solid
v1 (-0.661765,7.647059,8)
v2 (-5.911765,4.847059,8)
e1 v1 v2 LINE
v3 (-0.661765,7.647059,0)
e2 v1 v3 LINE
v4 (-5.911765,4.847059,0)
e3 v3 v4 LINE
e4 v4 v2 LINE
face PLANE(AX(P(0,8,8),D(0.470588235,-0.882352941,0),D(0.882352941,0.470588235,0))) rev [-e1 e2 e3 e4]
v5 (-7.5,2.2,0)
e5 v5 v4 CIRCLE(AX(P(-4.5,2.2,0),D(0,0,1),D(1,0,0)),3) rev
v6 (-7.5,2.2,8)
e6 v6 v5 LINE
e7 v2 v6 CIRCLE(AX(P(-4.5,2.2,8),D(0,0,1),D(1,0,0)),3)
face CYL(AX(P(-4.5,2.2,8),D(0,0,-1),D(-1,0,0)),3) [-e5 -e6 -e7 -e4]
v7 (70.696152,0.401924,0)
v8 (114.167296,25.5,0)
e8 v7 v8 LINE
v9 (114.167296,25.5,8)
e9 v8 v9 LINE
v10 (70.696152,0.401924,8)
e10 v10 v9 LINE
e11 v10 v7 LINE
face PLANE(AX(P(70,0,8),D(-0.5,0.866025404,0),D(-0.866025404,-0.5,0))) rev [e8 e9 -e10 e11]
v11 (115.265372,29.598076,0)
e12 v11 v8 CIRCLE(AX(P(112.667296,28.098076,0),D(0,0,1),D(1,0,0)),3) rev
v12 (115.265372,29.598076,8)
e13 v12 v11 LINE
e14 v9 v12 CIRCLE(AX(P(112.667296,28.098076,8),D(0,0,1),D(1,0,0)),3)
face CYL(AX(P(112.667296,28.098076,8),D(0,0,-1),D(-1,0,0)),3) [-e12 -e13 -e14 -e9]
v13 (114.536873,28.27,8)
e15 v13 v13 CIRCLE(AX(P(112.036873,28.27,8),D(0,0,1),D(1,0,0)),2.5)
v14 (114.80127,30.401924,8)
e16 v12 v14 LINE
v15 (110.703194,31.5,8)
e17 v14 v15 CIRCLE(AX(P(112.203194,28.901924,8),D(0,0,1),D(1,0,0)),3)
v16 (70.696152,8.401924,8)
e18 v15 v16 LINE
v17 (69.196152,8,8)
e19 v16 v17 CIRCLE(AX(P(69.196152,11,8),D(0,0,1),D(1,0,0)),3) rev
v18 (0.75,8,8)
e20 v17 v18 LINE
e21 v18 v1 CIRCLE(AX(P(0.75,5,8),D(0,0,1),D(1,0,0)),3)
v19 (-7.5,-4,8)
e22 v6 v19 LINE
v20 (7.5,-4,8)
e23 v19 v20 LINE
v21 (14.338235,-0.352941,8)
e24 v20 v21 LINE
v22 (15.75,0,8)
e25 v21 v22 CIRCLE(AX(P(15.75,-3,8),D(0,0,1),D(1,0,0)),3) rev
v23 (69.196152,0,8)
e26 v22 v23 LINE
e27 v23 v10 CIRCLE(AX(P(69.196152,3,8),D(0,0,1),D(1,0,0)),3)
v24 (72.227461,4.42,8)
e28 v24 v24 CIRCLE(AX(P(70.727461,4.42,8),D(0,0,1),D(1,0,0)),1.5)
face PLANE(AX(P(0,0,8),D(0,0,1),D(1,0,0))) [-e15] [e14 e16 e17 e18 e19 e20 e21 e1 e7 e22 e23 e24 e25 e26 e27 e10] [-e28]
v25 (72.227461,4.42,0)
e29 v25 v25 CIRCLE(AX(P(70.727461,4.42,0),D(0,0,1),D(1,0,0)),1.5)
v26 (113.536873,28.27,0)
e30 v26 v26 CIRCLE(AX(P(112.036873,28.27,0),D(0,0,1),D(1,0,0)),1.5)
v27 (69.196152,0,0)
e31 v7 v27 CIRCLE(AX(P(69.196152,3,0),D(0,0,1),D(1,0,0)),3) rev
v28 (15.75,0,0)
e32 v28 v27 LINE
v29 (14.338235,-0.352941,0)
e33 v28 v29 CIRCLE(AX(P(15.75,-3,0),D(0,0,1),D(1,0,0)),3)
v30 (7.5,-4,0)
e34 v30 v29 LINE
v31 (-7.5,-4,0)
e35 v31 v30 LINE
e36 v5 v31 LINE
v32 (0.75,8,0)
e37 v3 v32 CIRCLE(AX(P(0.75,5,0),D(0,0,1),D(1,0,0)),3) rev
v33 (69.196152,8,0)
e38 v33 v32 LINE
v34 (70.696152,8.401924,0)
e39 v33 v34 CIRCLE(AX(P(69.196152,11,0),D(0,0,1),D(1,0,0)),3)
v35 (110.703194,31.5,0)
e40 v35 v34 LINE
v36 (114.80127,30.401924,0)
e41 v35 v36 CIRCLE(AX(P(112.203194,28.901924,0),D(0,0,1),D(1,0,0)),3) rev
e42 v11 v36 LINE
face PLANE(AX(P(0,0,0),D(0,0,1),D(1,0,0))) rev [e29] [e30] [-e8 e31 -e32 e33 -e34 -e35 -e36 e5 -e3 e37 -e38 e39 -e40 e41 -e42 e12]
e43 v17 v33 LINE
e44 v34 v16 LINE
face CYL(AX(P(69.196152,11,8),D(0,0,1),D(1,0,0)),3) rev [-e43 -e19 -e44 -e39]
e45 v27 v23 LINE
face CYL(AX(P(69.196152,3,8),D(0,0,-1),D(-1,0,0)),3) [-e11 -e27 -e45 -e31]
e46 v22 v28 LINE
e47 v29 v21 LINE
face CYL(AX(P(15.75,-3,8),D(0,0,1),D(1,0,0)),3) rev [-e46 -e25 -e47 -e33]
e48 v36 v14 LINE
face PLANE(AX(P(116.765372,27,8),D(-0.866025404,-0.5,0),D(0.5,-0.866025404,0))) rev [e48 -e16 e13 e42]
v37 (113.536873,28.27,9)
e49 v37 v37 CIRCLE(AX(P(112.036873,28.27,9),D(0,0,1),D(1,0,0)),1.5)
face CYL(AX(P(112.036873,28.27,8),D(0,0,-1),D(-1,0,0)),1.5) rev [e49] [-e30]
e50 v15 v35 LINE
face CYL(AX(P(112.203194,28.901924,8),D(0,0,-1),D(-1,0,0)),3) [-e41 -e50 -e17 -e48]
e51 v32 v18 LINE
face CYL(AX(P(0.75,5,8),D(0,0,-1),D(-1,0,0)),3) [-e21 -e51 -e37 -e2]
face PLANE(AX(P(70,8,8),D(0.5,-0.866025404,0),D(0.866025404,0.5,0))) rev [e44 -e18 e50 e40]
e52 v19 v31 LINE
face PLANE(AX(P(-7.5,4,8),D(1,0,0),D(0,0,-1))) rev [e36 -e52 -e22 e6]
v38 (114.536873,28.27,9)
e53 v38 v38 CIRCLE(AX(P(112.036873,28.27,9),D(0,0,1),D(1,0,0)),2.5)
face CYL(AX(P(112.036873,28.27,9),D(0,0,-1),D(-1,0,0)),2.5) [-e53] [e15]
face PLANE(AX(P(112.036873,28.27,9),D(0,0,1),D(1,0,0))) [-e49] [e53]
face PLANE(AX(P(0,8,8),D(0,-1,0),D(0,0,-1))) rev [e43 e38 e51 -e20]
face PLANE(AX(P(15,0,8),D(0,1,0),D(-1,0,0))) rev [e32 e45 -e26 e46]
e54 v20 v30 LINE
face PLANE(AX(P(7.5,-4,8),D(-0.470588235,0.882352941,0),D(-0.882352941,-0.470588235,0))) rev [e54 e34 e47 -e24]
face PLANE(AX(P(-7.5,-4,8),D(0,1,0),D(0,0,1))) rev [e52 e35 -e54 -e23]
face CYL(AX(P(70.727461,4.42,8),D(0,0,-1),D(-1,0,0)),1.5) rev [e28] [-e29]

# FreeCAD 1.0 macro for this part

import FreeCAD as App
import Part
import Sketcher

V = App.Vector
Q = App.Units.Quantity


def edges_at(feature, points):
    """Names of the edges that pass closest to the given points."""
    edges = feature.Shape.Edges
    near = lambda p: min(range(len(edges)), key=lambda i: edges[i].distToShape(Part.Vertex(*p))[0])
    return sorted({f"Edge{near(p) + 1}" for p in points})

doc = App.newDocument("Part")
params = doc.addObject("Spreadsheet::Sheet", "Params")
for row, (alias, value) in enumerate([
    ("sketch1_diameter", "3 mm"),
    ("sketch1_width", "15 mm"),
    ("sketch1_width2", "55 mm"),
    ("sketch1_height", "8 mm"),
    ("sketch1_length", "54 mm"),
    ("pad1_length", "8 mm"),
    ("fillet_radius", "3 mm"),
    ("sketch2_diameter", "5 mm"),
    ("sketch2_diameter2", "3 mm"),
    ("pad2_length", "1 mm"),
], start=1):
    params.set(f"A{row}", alias)
    params.set(f"B{row}", "=" + value)
    params.setAlias(f"B{row}", alias)

body = doc.addObject("PartDesign::Body", "Body")

# Sketch on XY plane
sketch1 = doc.addObject("Sketcher::SketchObject", "Sketch")
body.addObject(sketch1)
sketch1.AttachmentSupport = (doc.XY_Plane, [""])
sketch1.MapMode = "FlatFace"
sketch1.addGeometry(Part.LineSegment(V(-7.5, 4, 0), V(-7.5, -4, 0)), False)
sketch1.addGeometry(Part.LineSegment(V(-7.5, -4, 0), V(7.5, -4, 0)), False)
sketch1.addGeometry(Part.LineSegment(V(7.5, -4, 0), V(15, 0, 0)), False)
sketch1.addGeometry(Part.LineSegment(V(15, 0, 0), V(70, 0, 0)), False)
sketch1.addGeometry(Part.LineSegment(V(70, 0, 0), V(116.8, 27, 0)), False)
sketch1.addGeometry(Part.LineSegment(V(116.8, 27, 0), V(113.3, 33, 0)), False)
sketch1.addGeometry(Part.LineSegment(V(113.3, 33, 0), V(70, 8, 0)), False)
sketch1.addGeometry(Part.LineSegment(V(70, 8, 0), V(0, 8, 0)), False)
sketch1.addGeometry(Part.LineSegment(V(0, 8, 0), V(-7.5, 4, 0)), False)
sketch1.addGeometry(Part.Circle(V(70.7, 4.4, 0), V(0, 0, 1), 1.5), False)
sketch1.addGeometry(Part.Circle(V(112, 28.3, 0), V(0, 0, 1), 1.5), False)
sketch1.addConstraint(Sketcher.Constraint("Coincident", 0, 2, 1, 1))
sketch1.addConstraint(Sketcher.Constraint("Coincident", 1, 2, 2, 1))
sketch1.addConstraint(Sketcher.Constraint("Coincident", 2, 2, 3, 1))
sketch1.addConstraint(Sketcher.Constraint("Coincident", 3, 2, 4, 1))
sketch1.addConstraint(Sketcher.Constraint("Coincident", 4, 2, 5, 1))
sketch1.addConstraint(Sketcher.Constraint("Coincident", 5, 2, 6, 1))
sketch1.addConstraint(Sketcher.Constraint("Coincident", 6, 2, 7, 1))
sketch1.addConstraint(Sketcher.Constraint("Coincident", 7, 2, 8, 1))
sketch1.addConstraint(Sketcher.Constraint("Coincident", 8, 2, 0, 1))
sketch1.addConstraint(Sketcher.Constraint("Vertical", 0))
sketch1.addConstraint(Sketcher.Constraint("Horizontal", 1))
sketch1.addConstraint(Sketcher.Constraint("Horizontal", 3))
sketch1.addConstraint(Sketcher.Constraint("Horizontal", 7))
sketch1.addConstraint(Sketcher.Constraint("Equal", 9, 10))
sketch1.addConstraint(Sketcher.Constraint("Symmetric", 1, 2, 8, 2, -1, 1))
sketch1.addConstraint(Sketcher.Constraint("PointOnObject", 2, 2, -1))
sketch1.addConstraint(Sketcher.Constraint("PointOnObject", 7, 2, -2))
sketch1.addConstraint(Sketcher.Constraint("Perpendicular", 4, 5))
sketch1.addConstraint(Sketcher.Constraint("Perpendicular", 5, 6))
sketch1.addConstraint(Sketcher.Constraint("Parallel", 2, 8))
sketch1.addConstraint(Sketcher.Constraint("Vertical", 3, 2, 6, 2))
sketch1.addConstraint(Sketcher.Constraint("Equal", 2, 8))
sketch1.addConstraint(Sketcher.Constraint("Diameter", 9, Q("3 mm")))
sketch1.addConstraint(Sketcher.Constraint("DistanceX", 1, 1, 1, 2, Q("15 mm")))
sketch1.addConstraint(Sketcher.Constraint("DistanceX", 3, 1, 3, 2, Q("55 mm")))
sketch1.addConstraint(Sketcher.Constraint("DistanceY", 0, 2, 0, 1, Q("8 mm")))
sketch1.addConstraint(Sketcher.Constraint("Angle", 4, Q("30 deg")))
sketch1.addConstraint(Sketcher.Constraint("Distance", 4, Q("54 mm")))
sketch1.addConstraint(Sketcher.Constraint("DistanceY", -1, 1, 9, 3, Q("4.42 mm")))
sketch1.addConstraint(Sketcher.Constraint("DistanceY", -1, 1, 10, 3, Q("28.27 mm")))
sketch1.addConstraint(Sketcher.Constraint("DistanceX", 10, 3, 4, 2, Q("4.728499 mm")))
sketch1.addConstraint(Sketcher.Constraint("DistanceX", -1, 1, 9, 3, Q("70.727461 mm")))
sketch1.setExpression("Constraints[22]", "Params.sketch1_diameter")
sketch1.setExpression("Constraints[23]", "Params.sketch1_width")
sketch1.setExpression("Constraints[24]", "Params.sketch1_width2")
sketch1.setExpression("Constraints[25]", "Params.sketch1_height")
sketch1.setExpression("Constraints[27]", "Params.sketch1_length")
pad1 = doc.addObject("PartDesign::Pad", "Pad")
body.addObject(pad1)
pad1.Profile = sketch1
pad1.setExpression("Length", "Params.pad1_length")
doc.recompute()

fillet = doc.addObject("PartDesign::Fillet", "Fillet")
body.addObject(fillet)
fillet.Base = (pad1, edges_at(pad1, [
    (-7.5, 4, 4),
    (0, 8, 4),
    (70, 8, 4),
    (113.301, 33, 4),
    (116.765, 27, 4),
    (70, 0, 4),
    (15, 0, 4),
]))
fillet.setExpression("Radius", "Params.fillet_radius")

# Sketch on XY plane
sketch2 = doc.addObject("Sketcher::SketchObject", "Sketch001")
body.addObject(sketch2)
sketch2.AttachmentSupport = (doc.XY_Plane, [""])
sketch2.MapMode = "FlatFace"
sketch2.AttachmentOffset = App.Placement(V(0, 0, 8), App.Rotation())
sketch2.addGeometry(Part.Circle(V(112, 28.3, 0), V(0, 0, 1), 2.5), False)
sketch2.addGeometry(Part.Circle(V(112, 28.3, 0), V(0, 0, 1), 1.5), False)
sketch2.addConstraint(Sketcher.Constraint("Coincident", 1, 3, 0, 3))
sketch2.addConstraint(Sketcher.Constraint("Diameter", 0, Q("5 mm")))
sketch2.addConstraint(Sketcher.Constraint("Diameter", 1, Q("3 mm")))
sketch2.addConstraint(Sketcher.Constraint("DistanceY", -1, 1, 0, 3, Q("28.27 mm")))
sketch2.addConstraint(Sketcher.Constraint("DistanceX", -1, 1, 0, 3, Q("112.036873 mm")))
sketch2.setExpression("Constraints[1]", "Params.sketch2_diameter")
sketch2.setExpression("Constraints[2]", "Params.sketch2_diameter2")
pad2 = doc.addObject("PartDesign::Pad", "Pad001")
body.addObject(pad2)
pad2.Profile = sketch2
pad2.setExpression("Length", "Params.pad2_length")

doc.recompute()
